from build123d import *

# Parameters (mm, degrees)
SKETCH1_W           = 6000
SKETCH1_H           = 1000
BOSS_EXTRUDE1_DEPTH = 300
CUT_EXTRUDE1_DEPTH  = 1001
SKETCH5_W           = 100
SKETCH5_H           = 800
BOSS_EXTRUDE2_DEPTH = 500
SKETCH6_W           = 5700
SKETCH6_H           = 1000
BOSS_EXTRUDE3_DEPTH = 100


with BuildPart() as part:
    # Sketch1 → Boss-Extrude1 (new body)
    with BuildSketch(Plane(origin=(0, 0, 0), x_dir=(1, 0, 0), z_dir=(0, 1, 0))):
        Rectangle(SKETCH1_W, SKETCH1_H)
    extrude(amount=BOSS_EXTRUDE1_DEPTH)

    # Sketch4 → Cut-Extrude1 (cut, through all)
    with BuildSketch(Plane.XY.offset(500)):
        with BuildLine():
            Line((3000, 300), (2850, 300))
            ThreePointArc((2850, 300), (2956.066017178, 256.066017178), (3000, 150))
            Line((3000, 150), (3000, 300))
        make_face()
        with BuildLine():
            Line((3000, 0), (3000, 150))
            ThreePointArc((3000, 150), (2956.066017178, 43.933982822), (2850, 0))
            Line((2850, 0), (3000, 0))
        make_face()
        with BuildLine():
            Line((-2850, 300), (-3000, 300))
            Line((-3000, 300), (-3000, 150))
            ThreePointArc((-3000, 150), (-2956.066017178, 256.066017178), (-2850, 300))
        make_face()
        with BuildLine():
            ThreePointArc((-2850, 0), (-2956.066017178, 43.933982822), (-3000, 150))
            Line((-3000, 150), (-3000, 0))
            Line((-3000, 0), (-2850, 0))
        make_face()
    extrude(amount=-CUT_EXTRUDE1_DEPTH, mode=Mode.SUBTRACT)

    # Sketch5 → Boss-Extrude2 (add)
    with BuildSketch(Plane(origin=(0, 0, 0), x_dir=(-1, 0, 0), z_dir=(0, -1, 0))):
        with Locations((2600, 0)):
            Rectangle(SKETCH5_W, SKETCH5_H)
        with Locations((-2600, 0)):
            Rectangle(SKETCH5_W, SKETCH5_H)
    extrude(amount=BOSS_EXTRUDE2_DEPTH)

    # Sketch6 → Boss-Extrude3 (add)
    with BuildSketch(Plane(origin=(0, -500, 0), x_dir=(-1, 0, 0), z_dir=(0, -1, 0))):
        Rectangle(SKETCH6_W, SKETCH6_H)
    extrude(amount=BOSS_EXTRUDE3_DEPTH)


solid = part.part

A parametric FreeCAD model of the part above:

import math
import FreeCAD as App
import Part
import Sketcher
from FreeCAD import Vector
Q = App.Units.Quantity


def add_polygon(sketch, points):
    """Adds a closed chain of lines whose ends are joined by coincident constraints."""
    first, n = sketch.GeometryCount, len(points)
    for a, b in zip(points, points[1:] + points[:1]):
        sketch.addGeometry(Part.LineSegment(App.Vector(*a, 0), App.Vector(*b, 0)), False)
    for i in range(n):
        sketch.addConstraint(Sketcher.Constraint("Coincident", first + i, 2, first + (i + 1) % n, 1))

doc = App.newDocument("Part")
body = doc.addObject("PartDesign::Body", "Body")

sketch1 = doc.addObject("Sketcher::SketchObject", "Sketch")
body.addObject(sketch1)
sketch1.AttachmentSupport = (doc.XZ_Plane, [""])
sketch1.MapMode = "FlatFace"
add_polygon(sketch1, [(-3000, -500), (-3000, 500), (3000, 500), (3000, -500)])
sketch1.addConstraint(Sketcher.Constraint("Vertical", 0))
sketch1.addConstraint(Sketcher.Constraint("Horizontal", 1))
sketch1.addConstraint(Sketcher.Constraint("Vertical", 2))
sketch1.addConstraint(Sketcher.Constraint("Horizontal", 3))
sketch1.addConstraint(Sketcher.Constraint("Symmetric", 0, 2, 2, 2, -1, 1))
sketch1.addConstraint(Sketcher.Constraint("DistanceX", 1, 1, 1, 2, Q("6000 mm")))
sketch1.addConstraint(Sketcher.Constraint("DistanceY", 0, 1, 0, 2, Q("1000 mm")))
pad1 = doc.addObject("PartDesign::Pad", "Pad")
body.addObject(pad1)
pad1.Profile = sketch1
pad1.Length = 300
pad1.Reversed = True

sketch2 = doc.addObject("Sketcher::SketchObject", "Sketch001")
body.addObject(sketch2)
sketch2.AttachmentSupport = (doc.XY_Plane, [""])
sketch2.MapMode = "FlatFace"
sketch2.AttachmentOffset = App.Placement(Vector(0, 0, 500), App.Rotation())
sketch2.addGeometry(Part.LineSegment(Vector(3000, 300, 0), Vector(2850, 300, 0)), False)
sketch2.addGeometry(Part.ArcOfCircle(Part.Circle(Vector(2850, 150, 0), Vector(0, 0, 1), 150), math.radians(0), math.radians(90)), False)
sketch2.addGeometry(Part.LineSegment(Vector(3000, 150, 0), Vector(3000, 300, 0)), False)
sketch2.addGeometry(Part.LineSegment(Vector(3000, 0, 0), Vector(3000, 150, 0)), False)
sketch2.addGeometry(Part.ArcOfCircle(Part.Circle(Vector(2850, 150, 0), Vector(0, 0, 1), 150), math.radians(-90), math.radians(0)), False)
sketch2.addGeometry(Part.LineSegment(Vector(2850, 0, 0), Vector(3000, 0, 0)), False)
sketch2.addGeometry(Part.LineSegment(Vector(-2850, 300, 0), Vector(-3000, 300, 0)), False)
sketch2.addGeometry(Part.LineSegment(Vector(-3000, 300, 0), Vector(-3000, 150, 0)), False)
sketch2.addGeometry(Part.ArcOfCircle(Part.Circle(Vector(-2850, 150, 0), Vector(0, 0, 1), 150), math.radians(90), math.radians(180)), False)
sketch2.addGeometry(Part.ArcOfCircle(Part.Circle(Vector(-2850, 150, 0), Vector(0, 0, 1), 150), math.radians(180), math.radians(270)), False)
sketch2.addGeometry(Part.LineSegment(Vector(-3000, 150, 0), Vector(-3000, 0, 0)), False)
sketch2.addGeometry(Part.LineSegment(Vector(-3000, 0, 0), Vector(-2850, 0, 0)), False)
sketch2.addConstraint(Sketcher.Constraint("Tangent", 0, 2, 1, 2))
sketch2.addConstraint(Sketcher.Constraint("Tangent", 1, 1, 2, 1))
sketch2.addConstraint(Sketcher.Constraint("Coincident", 2, 2, 0, 1))
sketch2.addConstraint(Sketcher.Constraint("Tangent", 3, 2, 4, 2))
sketch2.addConstraint(Sketcher.Constraint("Tangent", 4, 1, 5, 1))
sketch2.addConstraint(Sketcher.Constraint("Coincident", 5, 2, 3, 1))
sketch2.addConstraint(Sketcher.Constraint("Coincident", 6, 2, 7, 1))
sketch2.addConstraint(Sketcher.Constraint("Tangent", 7, 2, 8, 2))
sketch2.addConstraint(Sketcher.Constraint("Tangent", 8, 1, 6, 1))
sketch2.addConstraint(Sketcher.Constraint("Tangent", 9, 1, 10, 1))
sketch2.addConstraint(Sketcher.Constraint("Coincident", 10, 2, 11, 1))
sketch2.addConstraint(Sketcher.Constraint("Tangent", 11, 2, 9, 2))
sketch2.addConstraint(Sketcher.Constraint("Horizontal", 0))
sketch2.addConstraint(Sketcher.Constraint("Vertical", 2))
sketch2.addConstraint(Sketcher.Constraint("Vertical", 3))
sketch2.addConstraint(Sketcher.Constraint("Horizontal", 5))
sketch2.addConstraint(Sketcher.Constraint("Horizontal", 6))
sketch2.addConstraint(Sketcher.Constraint("Vertical", 7))
sketch2.addConstraint(Sketcher.Constraint("Vertical", 10))
sketch2.addConstraint(Sketcher.Constraint("Horizontal", 11))
sketch2.addConstraint(Sketcher.Constraint("Coincident", 4, 3, 1, 3))
sketch2.addConstraint(Sketcher.Constraint("Coincident", 9, 3, 8, 3))
sketch2.addConstraint(Sketcher.Constraint("Equal", 1, 4))
sketch2.addConstraint(Sketcher.Constraint("Equal", 4, 8))
sketch2.addConstraint(Sketcher.Constraint("Equal", 8, 9))
sketch2.addConstraint(Sketcher.Constraint("Symmetric", 5, 2, 10, 2, -1, 1))
sketch2.addConstraint(Sketcher.Constraint("PointOnObject", 4, 1, -1))
sketch2.addConstraint(Sketcher.Constraint("Radius", 1, Q("150 mm")))
sketch2.addConstraint(Sketcher.Constraint("DistanceX", -1, 1, 1, 3, Q("2850 mm")))
pocket1 = doc.addObject("PartDesign::Pocket", "Pocket")
body.addObject(pocket1)
pocket1.Profile = sketch2
pocket1.Type = "ThroughAll"

sketch3 = doc.addObject("Sketcher::SketchObject", "Sketch002")
body.addObject(sketch3)
sketch3.AttachmentSupport = (doc.XZ_Plane, [""])
sketch3.MapMode = "FlatFace"
add_polygon(sketch3, [(-2550, -400), (-2550, 400), (-2650, 400), (-2650, -400)])
add_polygon(sketch3, [(2650, -400), (2650, 400), (2550, 400), (2550, -400)])
sketch3.addConstraint(Sketcher.Constraint("Vertical", 0))
sketch3.addConstraint(Sketcher.Constraint("Horizontal", 1))
sketch3.addConstraint(Sketcher.Constraint("Vertical", 2))
sketch3.addConstraint(Sketcher.Constraint("Horizontal", 3))
sketch3.addConstraint(Sketcher.Constraint("Vertical", 4))
sketch3.addConstraint(Sketcher.Constraint("Horizontal", 5))
sketch3.addConstraint(Sketcher.Constraint("Vertical", 6))
sketch3.addConstraint(Sketcher.Constraint("Horizontal", 7))
sketch3.addConstraint(Sketcher.Constraint("Symmetric", 2, 2, 4, 2, -1, 1))
sketch3.addConstraint(Sketcher.Constraint("Symmetric", 0, 2, 6, 2, -1, 1))
sketch3.addConstraint(Sketcher.Constraint("Horizontal", 1, 2, 4, 2))
sketch3.addConstraint(Sketcher.Constraint("DistanceX", 1, 2, 1, 1, Q("100 mm")))
sketch3.addConstraint(Sketcher.Constraint("DistanceY", 0, 1, 0, 2, Q("800 mm")))
sketch3.addConstraint(Sketcher.Constraint("DistanceX", 0, 2, -1, 1, Q("2550 mm")))
pad2 = doc.addObject("PartDesign::Pad", "Pad001")
body.addObject(pad2)
pad2.Profile = sketch3
pad2.Length = 500

sketch4 = doc.addObject("Sketcher::SketchObject", "Sketch003")
body.addObject(sketch4)
sketch4.AttachmentSupport = (doc.XZ_Plane, [""])
sketch4.MapMode = "FlatFace"
sketch4.AttachmentOffset = App.Placement(Vector(0, 0, 500), App.Rotation())
add_polygon(sketch4, [(2850, -500), (2850, 500), (-2850, 500), (-2850, -500)])
sketch4.addConstraint(Sketcher.Constraint("Vertical", 0))
sketch4.addConstraint(Sketcher.Constraint("Horizontal", 1))
sketch4.addConstraint(Sketcher.Constraint("Vertical", 2))
sketch4.addConstraint(Sketcher.Constraint("Horizontal", 3))
sketch4.addConstraint(Sketcher.Constraint("Symmetric", 0, 2, 2, 2, -1, 1))
sketch4.addConstraint(Sketcher.Constraint("DistanceX", 1, 2, 1, 1, Q("5700 mm")))
sketch4.addConstraint(Sketcher.Constraint("DistanceY", 0, 1, 0, 2, Q("1000 mm")))
pad3 = doc.addObject("PartDesign::Pad", "Pad002")
body.addObject(pad3)
pad3.Profile = sketch4
pad3.Length = 100

doc.recompute()
